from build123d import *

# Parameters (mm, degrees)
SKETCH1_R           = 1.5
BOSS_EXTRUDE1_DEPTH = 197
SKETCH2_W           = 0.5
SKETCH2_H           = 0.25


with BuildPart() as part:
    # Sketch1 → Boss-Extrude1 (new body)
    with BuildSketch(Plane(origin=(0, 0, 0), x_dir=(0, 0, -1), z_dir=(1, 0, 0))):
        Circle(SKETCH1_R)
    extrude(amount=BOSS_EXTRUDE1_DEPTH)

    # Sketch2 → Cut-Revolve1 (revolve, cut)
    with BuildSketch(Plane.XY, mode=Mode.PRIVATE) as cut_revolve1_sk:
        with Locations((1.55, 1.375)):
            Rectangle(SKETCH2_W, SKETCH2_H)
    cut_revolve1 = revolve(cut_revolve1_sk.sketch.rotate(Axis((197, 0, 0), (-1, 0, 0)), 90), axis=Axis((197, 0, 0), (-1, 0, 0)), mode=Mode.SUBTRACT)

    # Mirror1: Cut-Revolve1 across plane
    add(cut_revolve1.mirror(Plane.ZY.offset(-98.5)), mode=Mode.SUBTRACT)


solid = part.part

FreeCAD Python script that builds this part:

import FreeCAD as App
import Part
import Sketcher

V = App.Vector
Q = App.Units.Quantity

doc = App.newDocument("Part")
body = doc.addObject("PartDesign::Body", "Body")

# Sketch on YZ plane
sketch1 = body.newObject("Sketcher::SketchObject", "Sketch")
sketch1.AttachmentSupport = (doc.getObject("YZ_Plane"), [""])
sketch1.MapMode = "FlatFace"
sketch1.addGeometry(Part.Circle(V(0, 0, 0), V(0, 0, 1), 1.5), False)
sketch1.addConstraint([
    Sketcher.Constraint("Coincident", 0, 3, -1, 1),
    Sketcher.Constraint("Diameter", 0, Q("3 mm")),
])
pad1 = body.newObject("PartDesign::Pad", "Pad")
pad1.Profile = sketch1
pad1.Length = 197

# Sketch on XY plane
sketch2 = body.newObject("Sketcher::SketchObject", "Sketch001")
sketch2.AttachmentSupport = (doc.getObject("XY_Plane"), [""])
sketch2.MapMode = "FlatFace"
sketch2.addGeometry([
    Part.LineSegment(V(1.3, 1.5, 0), V(1.3, 1.25, 0)),
    Part.LineSegment(V(1.3, 1.25, 0), V(1.8, 1.25, 0)),
    Part.LineSegment(V(1.8, 1.25, 0), V(1.8, 1.5, 0)),
    Part.LineSegment(V(1.8, 1.5, 0), V(1.3, 1.5, 0)),
], False)
sketch2.addConstraint([
    Sketcher.Constraint("Coincident", 0, 2, 1, 1),
    Sketcher.Constraint("Coincident", 1, 2, 2, 1),
    Sketcher.Constraint("Coincident", 2, 2, 3, 1),
    Sketcher.Constraint("Coincident", 3, 2, 0, 1),
    Sketcher.Constraint("Vertical", 0),
    Sketcher.Constraint("Horizontal", 1),
    Sketcher.Constraint("Vertical", 2),
    Sketcher.Constraint("Horizontal", 3),
    Sketcher.Constraint("DistanceX", 1, 1, 1, 2, Q("0.5 mm")),
    Sketcher.Constraint("DistanceY", 0, 2, 0, 1, Q("0.25 mm")),
    Sketcher.Constraint("DistanceX", -1, 1, 0, 2, Q("1.3 mm")),
    Sketcher.Constraint("DistanceY", -1, 1, 2, 2, Q("1.5 mm")),
])
groove = body.newObject("PartDesign::Groove", "Groove")
groove.Profile = sketch2
groove.ReferenceAxis = (sketch2, ["H_Axis"])
groove.Angle = 360
doc.recompute()

datumplane = body.newObject("PartDesign::Plane", "DatumPlane")
datumplane.AttachmentSupport = (doc.getObject("YZ_Plane"), [""])
datumplane.MapMode = "FlatFace"
datumplane.AttachmentOffset = App.Placement(V(0, 0, 98.5), App.Rotation())
mirrored = body.newObject("PartDesign::Mirrored", "Mirrored")
mirrored.Originals = [groove]
mirrored.MirrorPlane = (datumplane, [""])
body.Tip = mirrored

doc.recompute()
